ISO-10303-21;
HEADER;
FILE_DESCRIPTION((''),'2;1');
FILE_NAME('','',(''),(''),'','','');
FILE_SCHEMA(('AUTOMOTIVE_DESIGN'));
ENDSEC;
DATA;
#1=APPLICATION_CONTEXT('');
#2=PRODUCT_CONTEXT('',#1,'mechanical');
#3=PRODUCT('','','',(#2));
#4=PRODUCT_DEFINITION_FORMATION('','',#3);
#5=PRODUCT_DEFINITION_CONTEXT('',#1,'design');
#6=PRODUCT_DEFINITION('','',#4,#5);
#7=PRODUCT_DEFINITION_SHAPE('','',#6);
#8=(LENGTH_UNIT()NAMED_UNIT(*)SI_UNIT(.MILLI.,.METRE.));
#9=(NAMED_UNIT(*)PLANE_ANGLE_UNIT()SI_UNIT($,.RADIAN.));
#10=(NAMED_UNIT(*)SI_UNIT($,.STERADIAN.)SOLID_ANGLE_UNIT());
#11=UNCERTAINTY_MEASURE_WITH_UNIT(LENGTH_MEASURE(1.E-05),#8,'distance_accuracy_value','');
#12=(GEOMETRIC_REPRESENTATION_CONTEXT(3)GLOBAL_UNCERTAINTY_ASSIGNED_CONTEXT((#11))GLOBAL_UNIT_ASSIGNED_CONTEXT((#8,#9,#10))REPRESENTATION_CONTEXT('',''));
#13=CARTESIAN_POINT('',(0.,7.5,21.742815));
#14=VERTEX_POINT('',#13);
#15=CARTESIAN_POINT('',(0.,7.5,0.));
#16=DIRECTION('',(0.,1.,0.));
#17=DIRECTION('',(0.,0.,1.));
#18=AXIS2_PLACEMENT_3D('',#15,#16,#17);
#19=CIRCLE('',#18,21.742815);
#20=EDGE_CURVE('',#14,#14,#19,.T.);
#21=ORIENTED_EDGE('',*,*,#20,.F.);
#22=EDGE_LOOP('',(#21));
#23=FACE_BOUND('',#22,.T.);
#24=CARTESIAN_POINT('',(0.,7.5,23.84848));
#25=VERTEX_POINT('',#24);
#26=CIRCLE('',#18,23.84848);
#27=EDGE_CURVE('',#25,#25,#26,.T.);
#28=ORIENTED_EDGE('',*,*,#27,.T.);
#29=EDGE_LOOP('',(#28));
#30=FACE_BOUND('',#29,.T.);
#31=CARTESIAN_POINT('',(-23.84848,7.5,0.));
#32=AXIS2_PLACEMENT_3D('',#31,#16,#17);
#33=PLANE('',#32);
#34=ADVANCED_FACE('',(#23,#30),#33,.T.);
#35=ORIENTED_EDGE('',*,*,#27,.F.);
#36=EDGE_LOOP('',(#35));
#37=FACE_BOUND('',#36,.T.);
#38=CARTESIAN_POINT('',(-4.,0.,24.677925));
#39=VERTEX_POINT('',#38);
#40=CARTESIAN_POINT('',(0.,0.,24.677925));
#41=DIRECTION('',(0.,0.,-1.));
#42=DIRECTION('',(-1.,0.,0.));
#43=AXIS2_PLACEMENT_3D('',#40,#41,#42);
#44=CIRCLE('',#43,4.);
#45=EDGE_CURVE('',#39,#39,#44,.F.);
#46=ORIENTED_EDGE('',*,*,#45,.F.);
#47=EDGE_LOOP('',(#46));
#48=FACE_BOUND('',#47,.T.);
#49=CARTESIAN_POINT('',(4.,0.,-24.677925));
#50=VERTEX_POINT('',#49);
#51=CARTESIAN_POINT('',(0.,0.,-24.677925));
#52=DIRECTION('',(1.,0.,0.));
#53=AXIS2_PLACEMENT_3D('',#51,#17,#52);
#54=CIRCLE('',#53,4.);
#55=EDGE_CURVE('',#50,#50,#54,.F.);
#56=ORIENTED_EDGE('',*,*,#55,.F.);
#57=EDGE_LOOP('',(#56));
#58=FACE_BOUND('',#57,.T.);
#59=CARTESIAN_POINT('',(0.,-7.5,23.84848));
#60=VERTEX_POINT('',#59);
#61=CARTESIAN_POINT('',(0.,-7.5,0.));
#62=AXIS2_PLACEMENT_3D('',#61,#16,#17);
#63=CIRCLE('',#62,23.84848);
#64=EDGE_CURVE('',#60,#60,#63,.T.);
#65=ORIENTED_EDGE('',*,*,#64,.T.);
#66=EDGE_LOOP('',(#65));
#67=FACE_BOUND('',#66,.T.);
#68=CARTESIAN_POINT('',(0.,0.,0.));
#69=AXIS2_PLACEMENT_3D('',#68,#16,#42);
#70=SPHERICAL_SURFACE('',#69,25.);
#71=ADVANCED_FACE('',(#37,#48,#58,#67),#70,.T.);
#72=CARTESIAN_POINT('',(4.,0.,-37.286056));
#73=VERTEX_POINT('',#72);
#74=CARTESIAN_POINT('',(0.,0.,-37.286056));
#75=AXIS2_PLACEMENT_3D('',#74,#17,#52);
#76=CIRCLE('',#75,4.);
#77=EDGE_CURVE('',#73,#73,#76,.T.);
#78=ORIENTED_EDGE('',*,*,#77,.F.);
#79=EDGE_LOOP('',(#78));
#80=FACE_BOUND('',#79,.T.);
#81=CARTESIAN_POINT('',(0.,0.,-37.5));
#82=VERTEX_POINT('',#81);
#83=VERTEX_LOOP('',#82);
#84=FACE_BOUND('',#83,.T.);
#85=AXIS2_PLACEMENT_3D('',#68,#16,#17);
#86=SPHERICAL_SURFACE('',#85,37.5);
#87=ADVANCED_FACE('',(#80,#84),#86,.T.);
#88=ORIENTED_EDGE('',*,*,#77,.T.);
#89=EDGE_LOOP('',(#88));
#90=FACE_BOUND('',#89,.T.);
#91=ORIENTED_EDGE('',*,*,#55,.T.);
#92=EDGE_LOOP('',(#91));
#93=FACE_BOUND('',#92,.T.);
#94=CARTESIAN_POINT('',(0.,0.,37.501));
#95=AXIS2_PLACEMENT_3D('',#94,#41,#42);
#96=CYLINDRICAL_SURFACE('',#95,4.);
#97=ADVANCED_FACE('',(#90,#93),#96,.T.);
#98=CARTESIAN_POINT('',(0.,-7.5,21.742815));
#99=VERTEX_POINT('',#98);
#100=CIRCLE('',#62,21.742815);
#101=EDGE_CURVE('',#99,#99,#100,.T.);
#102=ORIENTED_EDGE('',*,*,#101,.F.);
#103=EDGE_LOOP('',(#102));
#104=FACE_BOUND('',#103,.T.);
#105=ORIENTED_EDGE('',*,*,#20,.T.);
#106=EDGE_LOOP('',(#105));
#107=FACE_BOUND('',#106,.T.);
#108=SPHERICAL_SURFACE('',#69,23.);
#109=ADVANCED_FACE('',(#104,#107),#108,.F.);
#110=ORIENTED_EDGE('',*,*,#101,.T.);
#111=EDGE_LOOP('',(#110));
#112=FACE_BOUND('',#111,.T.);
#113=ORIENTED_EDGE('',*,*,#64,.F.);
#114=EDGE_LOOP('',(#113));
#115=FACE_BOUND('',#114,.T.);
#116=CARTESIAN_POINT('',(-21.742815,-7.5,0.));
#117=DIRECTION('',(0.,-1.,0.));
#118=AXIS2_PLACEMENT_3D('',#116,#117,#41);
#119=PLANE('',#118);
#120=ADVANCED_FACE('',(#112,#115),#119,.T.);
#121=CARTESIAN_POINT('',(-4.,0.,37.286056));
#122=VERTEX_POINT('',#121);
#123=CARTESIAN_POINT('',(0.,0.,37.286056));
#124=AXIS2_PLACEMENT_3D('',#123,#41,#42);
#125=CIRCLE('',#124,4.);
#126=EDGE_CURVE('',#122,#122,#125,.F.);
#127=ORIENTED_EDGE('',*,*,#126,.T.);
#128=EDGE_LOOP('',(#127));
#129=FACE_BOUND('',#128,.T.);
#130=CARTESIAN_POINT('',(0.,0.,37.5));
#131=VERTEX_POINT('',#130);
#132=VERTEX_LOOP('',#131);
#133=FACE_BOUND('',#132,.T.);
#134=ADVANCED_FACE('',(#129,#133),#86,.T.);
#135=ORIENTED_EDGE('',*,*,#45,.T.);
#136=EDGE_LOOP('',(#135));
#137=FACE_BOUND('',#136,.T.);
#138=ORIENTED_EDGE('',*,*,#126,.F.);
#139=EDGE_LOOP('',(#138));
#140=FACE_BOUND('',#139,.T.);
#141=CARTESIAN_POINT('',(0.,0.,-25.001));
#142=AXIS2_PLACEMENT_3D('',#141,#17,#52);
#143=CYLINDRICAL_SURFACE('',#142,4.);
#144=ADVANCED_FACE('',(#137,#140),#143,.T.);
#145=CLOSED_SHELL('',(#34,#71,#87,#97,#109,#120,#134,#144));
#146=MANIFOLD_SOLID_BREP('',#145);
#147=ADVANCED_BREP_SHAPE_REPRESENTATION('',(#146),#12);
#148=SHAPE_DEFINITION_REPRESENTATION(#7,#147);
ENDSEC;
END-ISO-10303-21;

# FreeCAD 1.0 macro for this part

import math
import FreeCAD as App
import Part
import Sketcher

V = App.Vector
Q = App.Units.Quantity

doc = App.newDocument("Part")
body = doc.addObject("PartDesign::Body", "Body")

# Sketch on XY plane
sketch1 = body.newObject("Sketcher::SketchObject", "Sketch")
sketch1.AttachmentSupport = (doc.getObject("XY_Plane"), [""])
sketch1.MapMode = "FlatFace"
sketch1.addGeometry(Part.LineSegment(V(-21.742815, 7.5, 0), V(-23.84848, 7.5, 0)), False)
sketch1.addGeometry(Part.ArcOfCircle(Part.Circle(V(0, 0, 0), V(0, 0, 1), 25), math.radians(162.542397), math.radians(197.457603)), False)
sketch1.addGeometry(Part.LineSegment(V(-23.84848, -7.5, 0), V(-21.742815, -7.5, 0)), False)
sketch1.addGeometry(Part.ArcOfCircle(Part.Circle(V(0, 0, 0), V(0, 0, 1), 23), math.radians(160.968559), math.radians(199.031441)), False)
sketch1.addConstraint(Sketcher.Constraint("Coincident", 0, 2, 1, 1))
sketch1.addConstraint(Sketcher.Constraint("Coincident", 1, 2, 2, 1))
sketch1.addConstraint(Sketcher.Constraint("Coincident", 2, 2, 3, 2))
sketch1.addConstraint(Sketcher.Constraint("Coincident", 3, 1, 0, 1))
sketch1.addConstraint(Sketcher.Constraint("Horizontal", 0))
sketch1.addConstraint(Sketcher.Constraint("Horizontal", 2))
sketch1.addConstraint(Sketcher.Constraint("Coincident", 1, 3, -1, 1))
sketch1.addConstraint(Sketcher.Constraint("Coincident", 3, 3, -1, 1))
sketch1.addConstraint(Sketcher.Constraint("Vertical", 0, 2, 1, 2))
sketch1.addConstraint(Sketcher.Constraint("Radius", 1, Q("25 mm")))
sketch1.addConstraint(Sketcher.Constraint("Radius", 3, Q("23 mm")))
sketch1.addConstraint(Sketcher.Constraint("DistanceY", 1, 2, 0, 2, Q("15 mm")))
revolution = body.newObject("PartDesign::Revolution", "Revolution")
revolution.Profile = sketch1
revolution.ReferenceAxis = (sketch1, ["V_Axis"])
revolution.Angle = 360

# Sketch on XY plane
sketch2 = body.newObject("Sketcher::SketchObject", "Sketch001")
sketch2.AttachmentSupport = (doc.getObject("XY_Plane"), [""])
sketch2.MapMode = "FlatFace"
sketch2.AttachmentOffset = App.Placement(V(0, 0, 37.5), App.Rotation())
sketch2.addGeometry(Part.Circle(V(0, 0, 0), V(0, 0, 1), 4), False)
sketch2.addConstraint(Sketcher.Constraint("Coincident", 0, 3, -1, 1))
sketch2.addConstraint(Sketcher.Constraint("Diameter", 0, Q("8 mm")))
pad1 = body.newObject("PartDesign::Pad", "Pad")
pad1.Profile = sketch2
pad1.Length = 12.822075
pad1.Reversed = True
doc.recompute()

mirrored = body.newObject("PartDesign::Mirrored", "Mirrored")
mirrored.Originals = [pad1]
mirrored.MirrorPlane = (doc.getObject("XY_Plane"), [""])
body.Tip = mirrored

# Sketch on YZ plane
sketch3 = body.newObject("Sketcher::SketchObject", "Sketch002")
sketch3.AttachmentSupport = (doc.getObject("YZ_Plane"), [""])
sketch3.MapMode = "FlatFace"
sketch3.addGeometry(Part.LineSegment(V(37.5, 0, 0), V(40, 0, 0)), False)
sketch3.addGeometry(Part.ArcOfCircle(Part.Circle(V(0, 0, 0), V(0, 0, 1), 40), math.radians(0), math.radians(180)), False)
sketch3.addGeometry(Part.LineSegment(V(-40, 0, 0), V(-37.5, 0, 0)), False)
sketch3.addGeometry(Part.ArcOfCircle(Part.Circle(V(0, 0, 0), V(0, 0, 1), 37.5), math.radians(0), math.radians(180)), False)
sketch3.addConstraint(Sketcher.Constraint("Coincident", 0, 2, 1, 1))
sketch3.addConstraint(Sketcher.Constraint("Coincident", 1, 2, 2, 1))
sketch3.addConstraint(Sketcher.Constraint("Coincident", 2, 2, 3, 2))
sketch3.addConstraint(Sketcher.Constraint("Coincident", 3, 1, 0, 1))
sketch3.addConstraint(Sketcher.Constraint("Horizontal", 0))
sketch3.addConstraint(Sketcher.Constraint("Horizontal", 2))
sketch3.addConstraint(Sketcher.Constraint("Coincident", 1, 3, -1, 1))
sketch3.addConstraint(Sketcher.Constraint("Coincident", 3, 3, -1, 1))
sketch3.addConstraint(Sketcher.Constraint("PointOnObject", 0, 2, -1))
sketch3.addConstraint(Sketcher.Constraint("PointOnObject", 1, 2, -1))
sketch3.addConstraint(Sketcher.Constraint("Radius", 1, Q("40 mm")))
sketch3.addConstraint(Sketcher.Constraint("Radius", 3, Q("37.5 mm")))
groove = body.newObject("PartDesign::Groove", "Groove")
groove.Profile = sketch3
groove.ReferenceAxis = (sketch3, ["H_Axis"])
groove.Angle = 360

doc.recompute()
